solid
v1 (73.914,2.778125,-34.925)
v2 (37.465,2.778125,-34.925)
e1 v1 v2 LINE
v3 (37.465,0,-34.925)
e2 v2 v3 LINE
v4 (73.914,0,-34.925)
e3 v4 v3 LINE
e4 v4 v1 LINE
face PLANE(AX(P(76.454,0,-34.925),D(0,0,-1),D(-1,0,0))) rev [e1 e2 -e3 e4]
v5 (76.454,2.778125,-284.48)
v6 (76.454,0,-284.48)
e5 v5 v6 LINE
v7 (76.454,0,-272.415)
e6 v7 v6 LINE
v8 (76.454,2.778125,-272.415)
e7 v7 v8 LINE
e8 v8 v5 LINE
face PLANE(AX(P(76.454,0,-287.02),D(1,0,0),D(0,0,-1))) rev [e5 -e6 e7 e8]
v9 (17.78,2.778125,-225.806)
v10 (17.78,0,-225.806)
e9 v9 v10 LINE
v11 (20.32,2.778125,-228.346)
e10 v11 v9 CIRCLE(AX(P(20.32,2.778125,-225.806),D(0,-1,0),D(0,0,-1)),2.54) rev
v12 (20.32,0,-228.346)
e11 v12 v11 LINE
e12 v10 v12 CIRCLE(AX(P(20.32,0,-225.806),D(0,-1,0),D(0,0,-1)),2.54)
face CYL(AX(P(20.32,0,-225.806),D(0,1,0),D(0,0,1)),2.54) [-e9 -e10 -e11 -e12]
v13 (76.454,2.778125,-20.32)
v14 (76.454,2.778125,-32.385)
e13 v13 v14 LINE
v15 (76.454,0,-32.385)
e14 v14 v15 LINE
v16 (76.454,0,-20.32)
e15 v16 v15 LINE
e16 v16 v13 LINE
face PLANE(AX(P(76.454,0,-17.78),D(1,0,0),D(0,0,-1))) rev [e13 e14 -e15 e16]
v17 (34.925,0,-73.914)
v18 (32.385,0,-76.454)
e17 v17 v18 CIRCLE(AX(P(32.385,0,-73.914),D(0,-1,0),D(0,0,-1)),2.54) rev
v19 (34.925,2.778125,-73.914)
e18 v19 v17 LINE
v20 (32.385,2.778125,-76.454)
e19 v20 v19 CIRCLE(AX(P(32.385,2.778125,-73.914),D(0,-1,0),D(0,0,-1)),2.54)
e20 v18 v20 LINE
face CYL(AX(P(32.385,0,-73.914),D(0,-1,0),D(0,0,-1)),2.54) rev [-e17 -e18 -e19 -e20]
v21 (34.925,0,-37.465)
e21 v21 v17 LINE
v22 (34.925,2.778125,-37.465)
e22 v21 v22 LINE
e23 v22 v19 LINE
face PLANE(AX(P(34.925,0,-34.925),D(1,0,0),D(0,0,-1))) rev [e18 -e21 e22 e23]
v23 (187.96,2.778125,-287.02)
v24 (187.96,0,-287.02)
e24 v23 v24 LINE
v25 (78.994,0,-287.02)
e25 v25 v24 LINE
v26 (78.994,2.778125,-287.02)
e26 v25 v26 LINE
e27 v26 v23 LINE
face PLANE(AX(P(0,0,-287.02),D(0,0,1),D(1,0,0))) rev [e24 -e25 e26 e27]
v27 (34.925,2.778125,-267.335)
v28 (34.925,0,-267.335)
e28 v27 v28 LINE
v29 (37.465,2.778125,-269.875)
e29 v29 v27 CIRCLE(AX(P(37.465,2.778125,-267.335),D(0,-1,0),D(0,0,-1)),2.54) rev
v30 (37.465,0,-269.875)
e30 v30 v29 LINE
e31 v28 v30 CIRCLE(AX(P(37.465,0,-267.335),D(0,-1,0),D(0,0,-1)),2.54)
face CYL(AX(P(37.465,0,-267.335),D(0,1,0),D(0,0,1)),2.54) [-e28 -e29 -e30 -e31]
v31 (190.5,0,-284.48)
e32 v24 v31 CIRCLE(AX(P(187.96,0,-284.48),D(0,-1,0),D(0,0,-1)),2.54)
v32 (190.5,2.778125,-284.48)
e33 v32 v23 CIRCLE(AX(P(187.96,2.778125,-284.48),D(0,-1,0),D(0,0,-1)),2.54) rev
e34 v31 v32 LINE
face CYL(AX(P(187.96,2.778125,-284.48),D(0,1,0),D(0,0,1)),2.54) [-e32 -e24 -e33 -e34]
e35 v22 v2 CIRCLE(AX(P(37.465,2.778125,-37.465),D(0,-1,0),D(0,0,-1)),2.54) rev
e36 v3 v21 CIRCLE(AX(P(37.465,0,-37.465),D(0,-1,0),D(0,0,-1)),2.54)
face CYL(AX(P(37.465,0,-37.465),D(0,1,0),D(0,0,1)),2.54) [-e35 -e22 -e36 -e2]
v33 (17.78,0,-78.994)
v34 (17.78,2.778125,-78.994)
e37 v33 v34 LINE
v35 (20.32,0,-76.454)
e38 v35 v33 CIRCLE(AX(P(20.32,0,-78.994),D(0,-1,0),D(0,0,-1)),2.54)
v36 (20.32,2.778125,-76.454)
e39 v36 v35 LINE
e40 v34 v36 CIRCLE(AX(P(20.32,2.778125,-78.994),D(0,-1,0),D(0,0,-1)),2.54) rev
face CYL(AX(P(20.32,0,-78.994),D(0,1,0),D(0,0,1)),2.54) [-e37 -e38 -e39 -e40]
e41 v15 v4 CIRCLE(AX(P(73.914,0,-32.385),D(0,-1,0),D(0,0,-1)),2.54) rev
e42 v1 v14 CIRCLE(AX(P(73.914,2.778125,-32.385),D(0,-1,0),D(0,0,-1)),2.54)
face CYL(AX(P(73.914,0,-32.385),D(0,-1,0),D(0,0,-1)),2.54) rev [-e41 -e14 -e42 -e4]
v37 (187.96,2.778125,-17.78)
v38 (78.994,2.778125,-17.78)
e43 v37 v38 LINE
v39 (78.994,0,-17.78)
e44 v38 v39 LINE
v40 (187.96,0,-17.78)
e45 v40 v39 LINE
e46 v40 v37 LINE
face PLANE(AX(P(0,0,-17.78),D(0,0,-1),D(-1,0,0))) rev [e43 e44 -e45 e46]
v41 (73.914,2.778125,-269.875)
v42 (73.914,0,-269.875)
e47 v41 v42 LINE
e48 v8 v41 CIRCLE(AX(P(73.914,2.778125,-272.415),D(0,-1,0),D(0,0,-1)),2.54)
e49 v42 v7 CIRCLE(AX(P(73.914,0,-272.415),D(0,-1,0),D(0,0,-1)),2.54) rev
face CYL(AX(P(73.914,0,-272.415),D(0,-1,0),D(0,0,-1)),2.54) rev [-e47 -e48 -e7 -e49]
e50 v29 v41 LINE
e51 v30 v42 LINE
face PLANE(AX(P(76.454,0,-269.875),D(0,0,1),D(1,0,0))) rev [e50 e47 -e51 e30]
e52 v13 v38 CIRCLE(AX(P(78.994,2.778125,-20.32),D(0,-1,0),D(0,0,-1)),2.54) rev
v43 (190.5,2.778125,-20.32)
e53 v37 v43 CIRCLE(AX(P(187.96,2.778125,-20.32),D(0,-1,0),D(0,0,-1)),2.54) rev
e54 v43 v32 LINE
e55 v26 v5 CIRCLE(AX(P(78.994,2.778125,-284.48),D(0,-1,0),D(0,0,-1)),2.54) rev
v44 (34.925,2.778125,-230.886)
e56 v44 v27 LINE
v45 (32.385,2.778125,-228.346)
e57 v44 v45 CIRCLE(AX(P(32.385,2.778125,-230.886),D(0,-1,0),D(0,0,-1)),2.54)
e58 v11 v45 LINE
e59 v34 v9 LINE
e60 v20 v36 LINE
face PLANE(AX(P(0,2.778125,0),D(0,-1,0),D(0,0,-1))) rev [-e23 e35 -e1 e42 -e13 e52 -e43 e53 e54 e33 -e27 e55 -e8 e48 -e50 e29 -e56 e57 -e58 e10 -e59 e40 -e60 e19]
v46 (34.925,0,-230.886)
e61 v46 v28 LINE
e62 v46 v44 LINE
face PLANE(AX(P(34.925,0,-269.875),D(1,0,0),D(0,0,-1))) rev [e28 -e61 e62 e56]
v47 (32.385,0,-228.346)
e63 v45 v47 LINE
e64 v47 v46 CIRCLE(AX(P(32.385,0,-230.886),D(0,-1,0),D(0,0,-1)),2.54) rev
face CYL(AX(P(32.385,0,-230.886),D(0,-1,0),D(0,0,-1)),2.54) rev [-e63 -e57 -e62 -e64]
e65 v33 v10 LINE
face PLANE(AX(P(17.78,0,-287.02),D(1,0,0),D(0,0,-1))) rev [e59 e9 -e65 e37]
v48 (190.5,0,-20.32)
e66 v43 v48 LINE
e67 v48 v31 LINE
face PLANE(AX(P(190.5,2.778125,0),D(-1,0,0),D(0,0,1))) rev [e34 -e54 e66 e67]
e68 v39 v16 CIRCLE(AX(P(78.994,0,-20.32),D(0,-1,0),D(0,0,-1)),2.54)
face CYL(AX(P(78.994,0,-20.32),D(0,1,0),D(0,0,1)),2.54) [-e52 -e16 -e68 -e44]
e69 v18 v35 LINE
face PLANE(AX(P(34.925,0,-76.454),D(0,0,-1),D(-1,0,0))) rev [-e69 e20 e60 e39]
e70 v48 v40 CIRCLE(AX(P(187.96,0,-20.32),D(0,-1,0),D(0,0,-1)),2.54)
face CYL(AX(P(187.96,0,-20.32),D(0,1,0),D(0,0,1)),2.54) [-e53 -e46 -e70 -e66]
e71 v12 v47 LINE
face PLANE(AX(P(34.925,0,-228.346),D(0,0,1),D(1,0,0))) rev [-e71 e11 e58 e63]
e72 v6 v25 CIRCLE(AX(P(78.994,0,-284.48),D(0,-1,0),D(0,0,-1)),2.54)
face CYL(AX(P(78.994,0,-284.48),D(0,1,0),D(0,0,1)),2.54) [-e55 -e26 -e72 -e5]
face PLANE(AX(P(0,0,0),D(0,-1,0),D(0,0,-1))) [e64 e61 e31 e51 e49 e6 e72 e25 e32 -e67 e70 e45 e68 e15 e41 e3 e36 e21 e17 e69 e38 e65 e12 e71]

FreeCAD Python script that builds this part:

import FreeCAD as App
import Part
import Sketcher

V = App.Vector
Q = App.Units.Quantity


def edges_at(feature, points):
    """Names of the edges that pass closest to the given points."""
    edges = feature.Shape.Edges
    near = lambda p: min(range(len(edges)), key=lambda i: edges[i].distToShape(Part.Vertex(*p))[0])
    return sorted({f"Edge{near(p) + 1}" for p in points})


def add_polygon(sketch, points):
    """Adds a closed chain of lines whose ends are joined by coincident constraints."""
    first, n = sketch.GeometryCount, len(points)
    for a, b in zip(points, points[1:] + points[:1]):
        sketch.addGeometry(Part.LineSegment(App.Vector(*a, 0), App.Vector(*b, 0)), False)
    for i in range(n):
        sketch.addConstraint(Sketcher.Constraint("Coincident", first + i, 2, first + (i + 1) % n, 1))

doc = App.newDocument("Part")
body = doc.addObject("PartDesign::Body", "Body")

# Sketch on XZ plane
sketch1 = doc.addObject("Sketcher::SketchObject", "Sketch")
body.addObject(sketch1)
sketch1.AttachmentSupport = (doc.XZ_Plane, [""])
sketch1.MapMode = "FlatFace"
add_polygon(sketch1, [(0, -305), (0, 0), (190, 0), (190, -305)])  # lines 0-3
sketch1.addConstraint(Sketcher.Constraint("Vertical", 0))
sketch1.addConstraint(Sketcher.Constraint("Horizontal", 1))
sketch1.addConstraint(Sketcher.Constraint("Vertical", 2))
sketch1.addConstraint(Sketcher.Constraint("Horizontal", 3))
sketch1.addConstraint(Sketcher.Constraint("Coincident", 0, 2, -1, 1))
sketch1.addConstraint(Sketcher.Constraint("DistanceY", 0, 1, 0, 2, Q("12 in")))
sketch1.addConstraint(Sketcher.Constraint("DistanceX", 1, 1, 1, 2, Q("7.5 in")))
pad1 = doc.addObject("PartDesign::Pad", "Pad")
body.addObject(pad1)
pad1.Profile = sketch1
pad1.Length = Q("0.109375 in")
pad1.Reversed = True

# Sketch on XZ plane
sketch2 = doc.addObject("Sketcher::SketchObject", "Sketch001")
body.addObject(sketch2)
sketch2.AttachmentSupport = (doc.XZ_Plane, [""])
sketch2.MapMode = "FlatFace"
sketch2.AttachmentOffset = App.Placement(V(0, 0, -0.109375 * 25.4), App.Rotation())
add_polygon(sketch2, [(0, -18), (0, 0), (190, 0), (190, -18)])  # lines 0-3
add_polygon(sketch2, [(0, -305), (0, -287), (190, -287), (190, -305)])  # lines 4-7
sketch2.addConstraint(Sketcher.Constraint("Vertical", 0))
sketch2.addConstraint(Sketcher.Constraint("Horizontal", 1))
sketch2.addConstraint(Sketcher.Constraint("Vertical", 2))
sketch2.addConstraint(Sketcher.Constraint("Horizontal", 3))
sketch2.addConstraint(Sketcher.Constraint("Vertical", 4))
sketch2.addConstraint(Sketcher.Constraint("Horizontal", 5))
sketch2.addConstraint(Sketcher.Constraint("Vertical", 6))
sketch2.addConstraint(Sketcher.Constraint("Horizontal", 7))
sketch2.addConstraint(Sketcher.Constraint("Coincident", 0, 2, -1, 1))
sketch2.addConstraint(Sketcher.Constraint("PointOnObject", 4, 2, -2))
sketch2.addConstraint(Sketcher.Constraint("Vertical", 2, 2, 5, 2))
sketch2.addConstraint(Sketcher.Constraint("Equal", 2, 4))
sketch2.addConstraint(Sketcher.Constraint("DistanceX", 1, 1, 1, 2, Q("7.5 in")))
sketch2.addConstraint(Sketcher.Constraint("DistanceY", 0, 1, 0, 2, Q("0.7 in")))
sketch2.addConstraint(Sketcher.Constraint("DistanceY", 6, 2, -1, 1, Q("12 in")))
pocket1 = doc.addObject("PartDesign::Pocket", "Pocket")
body.addObject(pocket1)
pocket1.Profile = sketch2
pocket1.Type = "ThroughAll"
pocket1.Reversed = True

# Sketch on XZ plane
sketch3 = doc.addObject("Sketcher::SketchObject", "Sketch002")
body.addObject(sketch3)
sketch3.AttachmentSupport = (doc.XZ_Plane, [""])
sketch3.MapMode = "FlatFace"
sketch3.AttachmentOffset = App.Placement(V(0, 0, -0.109375 * 25.4), App.Rotation())
add_polygon(sketch3, [(0, -287), (0, -18), (18, -18), (18, -287)])  # lines 0-3
sketch3.addConstraint(Sketcher.Constraint("Vertical", 0))
sketch3.addConstraint(Sketcher.Constraint("Horizontal", 1))
sketch3.addConstraint(Sketcher.Constraint("Vertical", 2))
sketch3.addConstraint(Sketcher.Constraint("Horizontal", 3))
sketch3.addConstraint(Sketcher.Constraint("PointOnObject", 0, 2, -2))
sketch3.addConstraint(Sketcher.Constraint("DistanceX", 1, 1, 1, 2, Q("0.7 in")))
sketch3.addConstraint(Sketcher.Constraint("DistanceY", 0, 1, 0, 2, Q("10.6 in")))
sketch3.addConstraint(Sketcher.Constraint("DistanceY", 0, 2, -1, 1, Q("0.7 in")))
pocket2 = doc.addObject("PartDesign::Pocket", "Pocket001")
body.addObject(pocket2)
pocket2.Profile = sketch3
pocket2.Type = "ThroughAll"
pocket2.Reversed = True

# Sketch on XZ plane
sketch4 = doc.addObject("Sketcher::SketchObject", "Sketch003")
body.addObject(sketch4)
sketch4.AttachmentSupport = (doc.XZ_Plane, [""])
sketch4.MapMode = "FlatFace"
sketch4.AttachmentOffset = App.Placement(V(0, 0, -0.109375 * 25.4), App.Rotation())
add_polygon(sketch4, [(76, -287), (18, -287), (18, -228), (35, -228), (35, -270), (76, -270)])  # lines 0-5
add_polygon(sketch4, [(18, -18), (76, -18), (76, -35), (35, -35), (35, -76), (18, -76)])  # lines 6-11
sketch4.addConstraint(Sketcher.Constraint("Horizontal", 0))
sketch4.addConstraint(Sketcher.Constraint("Vertical", 1))
sketch4.addConstraint(Sketcher.Constraint("Horizontal", 2))
sketch4.addConstraint(Sketcher.Constraint("Vertical", 3))
sketch4.addConstraint(Sketcher.Constraint("Horizontal", 4))
sketch4.addConstraint(Sketcher.Constraint("Vertical", 5))
sketch4.addConstraint(Sketcher.Constraint("Horizontal", 6))
sketch4.addConstraint(Sketcher.Constraint("Vertical", 7))
sketch4.addConstraint(Sketcher.Constraint("Horizontal", 8))
sketch4.addConstraint(Sketcher.Constraint("Vertical", 9))
sketch4.addConstraint(Sketcher.Constraint("Horizontal", 10))
sketch4.addConstraint(Sketcher.Constraint("Vertical", 11))
sketch4.addConstraint(Sketcher.Constraint("Vertical", 5, 2, 6, 2))
sketch4.addConstraint(Sketcher.Constraint("Vertical", 3, 2, 8, 2))
sketch4.addConstraint(Sketcher.Constraint("Vertical", 1, 2, 10, 2))
sketch4.addConstraint(Sketcher.Constraint("Equal", 6, 1))
sketch4.addConstraint(Sketcher.Constraint("Equal", 8, 3))
sketch4.addConstraint(Sketcher.Constraint("Equal", 5, 7))
sketch4.addConstraint(Sketcher.Constraint("Equal", 3, 9))
sketch4.addConstraint(Sketcher.Constraint("DistanceX", 0, 2, 0, 1, Q("2.31 in")))
sketch4.addConstraint(Sketcher.Constraint("DistanceX", -1, 1, 0, 2, Q("0.7 in")))
sketch4.addConstraint(Sketcher.Constraint("DistanceY", 0, 2, -1, 1, Q("11.3 in")))
sketch4.addConstraint(Sketcher.Constraint("DistanceY", 6, 2, -1, 1, Q("0.7 in")))
sketch4.addConstraint(Sketcher.Constraint("DistanceX", 2, 1, 2, 2, Q("0.675 in")))
pocket3 = doc.addObject("PartDesign::Pocket", "Pocket002")
body.addObject(pocket3)
pocket3.Profile = sketch4
pocket3.Type = "ThroughAll"
pocket3.Reversed = True
doc.recompute()

fillet = doc.addObject("PartDesign::Fillet", "Fillet")
body.addObject(fillet)
fillet.Base = (pocket3, edges_at(pocket3, [
    (190.5, 1.389, -17.78),
    (190.5, 1.389, -287.02),
    (17.78, 1.389, -228.346),
    (76.454, 1.389, -287.02),
    (76.454, 1.389, -269.875),
    (34.925, 1.389, -269.875),
    (34.925, 1.389, -228.346),
    (17.78, 1.389, -76.454),
    (34.925, 1.389, -76.454),
    (34.925, 1.389, -34.925),
    (76.454, 1.389, -34.925),
    (76.454, 1.389, -17.78),
]))
fillet.Radius = Q("0.1 in")

doc.recompute()
